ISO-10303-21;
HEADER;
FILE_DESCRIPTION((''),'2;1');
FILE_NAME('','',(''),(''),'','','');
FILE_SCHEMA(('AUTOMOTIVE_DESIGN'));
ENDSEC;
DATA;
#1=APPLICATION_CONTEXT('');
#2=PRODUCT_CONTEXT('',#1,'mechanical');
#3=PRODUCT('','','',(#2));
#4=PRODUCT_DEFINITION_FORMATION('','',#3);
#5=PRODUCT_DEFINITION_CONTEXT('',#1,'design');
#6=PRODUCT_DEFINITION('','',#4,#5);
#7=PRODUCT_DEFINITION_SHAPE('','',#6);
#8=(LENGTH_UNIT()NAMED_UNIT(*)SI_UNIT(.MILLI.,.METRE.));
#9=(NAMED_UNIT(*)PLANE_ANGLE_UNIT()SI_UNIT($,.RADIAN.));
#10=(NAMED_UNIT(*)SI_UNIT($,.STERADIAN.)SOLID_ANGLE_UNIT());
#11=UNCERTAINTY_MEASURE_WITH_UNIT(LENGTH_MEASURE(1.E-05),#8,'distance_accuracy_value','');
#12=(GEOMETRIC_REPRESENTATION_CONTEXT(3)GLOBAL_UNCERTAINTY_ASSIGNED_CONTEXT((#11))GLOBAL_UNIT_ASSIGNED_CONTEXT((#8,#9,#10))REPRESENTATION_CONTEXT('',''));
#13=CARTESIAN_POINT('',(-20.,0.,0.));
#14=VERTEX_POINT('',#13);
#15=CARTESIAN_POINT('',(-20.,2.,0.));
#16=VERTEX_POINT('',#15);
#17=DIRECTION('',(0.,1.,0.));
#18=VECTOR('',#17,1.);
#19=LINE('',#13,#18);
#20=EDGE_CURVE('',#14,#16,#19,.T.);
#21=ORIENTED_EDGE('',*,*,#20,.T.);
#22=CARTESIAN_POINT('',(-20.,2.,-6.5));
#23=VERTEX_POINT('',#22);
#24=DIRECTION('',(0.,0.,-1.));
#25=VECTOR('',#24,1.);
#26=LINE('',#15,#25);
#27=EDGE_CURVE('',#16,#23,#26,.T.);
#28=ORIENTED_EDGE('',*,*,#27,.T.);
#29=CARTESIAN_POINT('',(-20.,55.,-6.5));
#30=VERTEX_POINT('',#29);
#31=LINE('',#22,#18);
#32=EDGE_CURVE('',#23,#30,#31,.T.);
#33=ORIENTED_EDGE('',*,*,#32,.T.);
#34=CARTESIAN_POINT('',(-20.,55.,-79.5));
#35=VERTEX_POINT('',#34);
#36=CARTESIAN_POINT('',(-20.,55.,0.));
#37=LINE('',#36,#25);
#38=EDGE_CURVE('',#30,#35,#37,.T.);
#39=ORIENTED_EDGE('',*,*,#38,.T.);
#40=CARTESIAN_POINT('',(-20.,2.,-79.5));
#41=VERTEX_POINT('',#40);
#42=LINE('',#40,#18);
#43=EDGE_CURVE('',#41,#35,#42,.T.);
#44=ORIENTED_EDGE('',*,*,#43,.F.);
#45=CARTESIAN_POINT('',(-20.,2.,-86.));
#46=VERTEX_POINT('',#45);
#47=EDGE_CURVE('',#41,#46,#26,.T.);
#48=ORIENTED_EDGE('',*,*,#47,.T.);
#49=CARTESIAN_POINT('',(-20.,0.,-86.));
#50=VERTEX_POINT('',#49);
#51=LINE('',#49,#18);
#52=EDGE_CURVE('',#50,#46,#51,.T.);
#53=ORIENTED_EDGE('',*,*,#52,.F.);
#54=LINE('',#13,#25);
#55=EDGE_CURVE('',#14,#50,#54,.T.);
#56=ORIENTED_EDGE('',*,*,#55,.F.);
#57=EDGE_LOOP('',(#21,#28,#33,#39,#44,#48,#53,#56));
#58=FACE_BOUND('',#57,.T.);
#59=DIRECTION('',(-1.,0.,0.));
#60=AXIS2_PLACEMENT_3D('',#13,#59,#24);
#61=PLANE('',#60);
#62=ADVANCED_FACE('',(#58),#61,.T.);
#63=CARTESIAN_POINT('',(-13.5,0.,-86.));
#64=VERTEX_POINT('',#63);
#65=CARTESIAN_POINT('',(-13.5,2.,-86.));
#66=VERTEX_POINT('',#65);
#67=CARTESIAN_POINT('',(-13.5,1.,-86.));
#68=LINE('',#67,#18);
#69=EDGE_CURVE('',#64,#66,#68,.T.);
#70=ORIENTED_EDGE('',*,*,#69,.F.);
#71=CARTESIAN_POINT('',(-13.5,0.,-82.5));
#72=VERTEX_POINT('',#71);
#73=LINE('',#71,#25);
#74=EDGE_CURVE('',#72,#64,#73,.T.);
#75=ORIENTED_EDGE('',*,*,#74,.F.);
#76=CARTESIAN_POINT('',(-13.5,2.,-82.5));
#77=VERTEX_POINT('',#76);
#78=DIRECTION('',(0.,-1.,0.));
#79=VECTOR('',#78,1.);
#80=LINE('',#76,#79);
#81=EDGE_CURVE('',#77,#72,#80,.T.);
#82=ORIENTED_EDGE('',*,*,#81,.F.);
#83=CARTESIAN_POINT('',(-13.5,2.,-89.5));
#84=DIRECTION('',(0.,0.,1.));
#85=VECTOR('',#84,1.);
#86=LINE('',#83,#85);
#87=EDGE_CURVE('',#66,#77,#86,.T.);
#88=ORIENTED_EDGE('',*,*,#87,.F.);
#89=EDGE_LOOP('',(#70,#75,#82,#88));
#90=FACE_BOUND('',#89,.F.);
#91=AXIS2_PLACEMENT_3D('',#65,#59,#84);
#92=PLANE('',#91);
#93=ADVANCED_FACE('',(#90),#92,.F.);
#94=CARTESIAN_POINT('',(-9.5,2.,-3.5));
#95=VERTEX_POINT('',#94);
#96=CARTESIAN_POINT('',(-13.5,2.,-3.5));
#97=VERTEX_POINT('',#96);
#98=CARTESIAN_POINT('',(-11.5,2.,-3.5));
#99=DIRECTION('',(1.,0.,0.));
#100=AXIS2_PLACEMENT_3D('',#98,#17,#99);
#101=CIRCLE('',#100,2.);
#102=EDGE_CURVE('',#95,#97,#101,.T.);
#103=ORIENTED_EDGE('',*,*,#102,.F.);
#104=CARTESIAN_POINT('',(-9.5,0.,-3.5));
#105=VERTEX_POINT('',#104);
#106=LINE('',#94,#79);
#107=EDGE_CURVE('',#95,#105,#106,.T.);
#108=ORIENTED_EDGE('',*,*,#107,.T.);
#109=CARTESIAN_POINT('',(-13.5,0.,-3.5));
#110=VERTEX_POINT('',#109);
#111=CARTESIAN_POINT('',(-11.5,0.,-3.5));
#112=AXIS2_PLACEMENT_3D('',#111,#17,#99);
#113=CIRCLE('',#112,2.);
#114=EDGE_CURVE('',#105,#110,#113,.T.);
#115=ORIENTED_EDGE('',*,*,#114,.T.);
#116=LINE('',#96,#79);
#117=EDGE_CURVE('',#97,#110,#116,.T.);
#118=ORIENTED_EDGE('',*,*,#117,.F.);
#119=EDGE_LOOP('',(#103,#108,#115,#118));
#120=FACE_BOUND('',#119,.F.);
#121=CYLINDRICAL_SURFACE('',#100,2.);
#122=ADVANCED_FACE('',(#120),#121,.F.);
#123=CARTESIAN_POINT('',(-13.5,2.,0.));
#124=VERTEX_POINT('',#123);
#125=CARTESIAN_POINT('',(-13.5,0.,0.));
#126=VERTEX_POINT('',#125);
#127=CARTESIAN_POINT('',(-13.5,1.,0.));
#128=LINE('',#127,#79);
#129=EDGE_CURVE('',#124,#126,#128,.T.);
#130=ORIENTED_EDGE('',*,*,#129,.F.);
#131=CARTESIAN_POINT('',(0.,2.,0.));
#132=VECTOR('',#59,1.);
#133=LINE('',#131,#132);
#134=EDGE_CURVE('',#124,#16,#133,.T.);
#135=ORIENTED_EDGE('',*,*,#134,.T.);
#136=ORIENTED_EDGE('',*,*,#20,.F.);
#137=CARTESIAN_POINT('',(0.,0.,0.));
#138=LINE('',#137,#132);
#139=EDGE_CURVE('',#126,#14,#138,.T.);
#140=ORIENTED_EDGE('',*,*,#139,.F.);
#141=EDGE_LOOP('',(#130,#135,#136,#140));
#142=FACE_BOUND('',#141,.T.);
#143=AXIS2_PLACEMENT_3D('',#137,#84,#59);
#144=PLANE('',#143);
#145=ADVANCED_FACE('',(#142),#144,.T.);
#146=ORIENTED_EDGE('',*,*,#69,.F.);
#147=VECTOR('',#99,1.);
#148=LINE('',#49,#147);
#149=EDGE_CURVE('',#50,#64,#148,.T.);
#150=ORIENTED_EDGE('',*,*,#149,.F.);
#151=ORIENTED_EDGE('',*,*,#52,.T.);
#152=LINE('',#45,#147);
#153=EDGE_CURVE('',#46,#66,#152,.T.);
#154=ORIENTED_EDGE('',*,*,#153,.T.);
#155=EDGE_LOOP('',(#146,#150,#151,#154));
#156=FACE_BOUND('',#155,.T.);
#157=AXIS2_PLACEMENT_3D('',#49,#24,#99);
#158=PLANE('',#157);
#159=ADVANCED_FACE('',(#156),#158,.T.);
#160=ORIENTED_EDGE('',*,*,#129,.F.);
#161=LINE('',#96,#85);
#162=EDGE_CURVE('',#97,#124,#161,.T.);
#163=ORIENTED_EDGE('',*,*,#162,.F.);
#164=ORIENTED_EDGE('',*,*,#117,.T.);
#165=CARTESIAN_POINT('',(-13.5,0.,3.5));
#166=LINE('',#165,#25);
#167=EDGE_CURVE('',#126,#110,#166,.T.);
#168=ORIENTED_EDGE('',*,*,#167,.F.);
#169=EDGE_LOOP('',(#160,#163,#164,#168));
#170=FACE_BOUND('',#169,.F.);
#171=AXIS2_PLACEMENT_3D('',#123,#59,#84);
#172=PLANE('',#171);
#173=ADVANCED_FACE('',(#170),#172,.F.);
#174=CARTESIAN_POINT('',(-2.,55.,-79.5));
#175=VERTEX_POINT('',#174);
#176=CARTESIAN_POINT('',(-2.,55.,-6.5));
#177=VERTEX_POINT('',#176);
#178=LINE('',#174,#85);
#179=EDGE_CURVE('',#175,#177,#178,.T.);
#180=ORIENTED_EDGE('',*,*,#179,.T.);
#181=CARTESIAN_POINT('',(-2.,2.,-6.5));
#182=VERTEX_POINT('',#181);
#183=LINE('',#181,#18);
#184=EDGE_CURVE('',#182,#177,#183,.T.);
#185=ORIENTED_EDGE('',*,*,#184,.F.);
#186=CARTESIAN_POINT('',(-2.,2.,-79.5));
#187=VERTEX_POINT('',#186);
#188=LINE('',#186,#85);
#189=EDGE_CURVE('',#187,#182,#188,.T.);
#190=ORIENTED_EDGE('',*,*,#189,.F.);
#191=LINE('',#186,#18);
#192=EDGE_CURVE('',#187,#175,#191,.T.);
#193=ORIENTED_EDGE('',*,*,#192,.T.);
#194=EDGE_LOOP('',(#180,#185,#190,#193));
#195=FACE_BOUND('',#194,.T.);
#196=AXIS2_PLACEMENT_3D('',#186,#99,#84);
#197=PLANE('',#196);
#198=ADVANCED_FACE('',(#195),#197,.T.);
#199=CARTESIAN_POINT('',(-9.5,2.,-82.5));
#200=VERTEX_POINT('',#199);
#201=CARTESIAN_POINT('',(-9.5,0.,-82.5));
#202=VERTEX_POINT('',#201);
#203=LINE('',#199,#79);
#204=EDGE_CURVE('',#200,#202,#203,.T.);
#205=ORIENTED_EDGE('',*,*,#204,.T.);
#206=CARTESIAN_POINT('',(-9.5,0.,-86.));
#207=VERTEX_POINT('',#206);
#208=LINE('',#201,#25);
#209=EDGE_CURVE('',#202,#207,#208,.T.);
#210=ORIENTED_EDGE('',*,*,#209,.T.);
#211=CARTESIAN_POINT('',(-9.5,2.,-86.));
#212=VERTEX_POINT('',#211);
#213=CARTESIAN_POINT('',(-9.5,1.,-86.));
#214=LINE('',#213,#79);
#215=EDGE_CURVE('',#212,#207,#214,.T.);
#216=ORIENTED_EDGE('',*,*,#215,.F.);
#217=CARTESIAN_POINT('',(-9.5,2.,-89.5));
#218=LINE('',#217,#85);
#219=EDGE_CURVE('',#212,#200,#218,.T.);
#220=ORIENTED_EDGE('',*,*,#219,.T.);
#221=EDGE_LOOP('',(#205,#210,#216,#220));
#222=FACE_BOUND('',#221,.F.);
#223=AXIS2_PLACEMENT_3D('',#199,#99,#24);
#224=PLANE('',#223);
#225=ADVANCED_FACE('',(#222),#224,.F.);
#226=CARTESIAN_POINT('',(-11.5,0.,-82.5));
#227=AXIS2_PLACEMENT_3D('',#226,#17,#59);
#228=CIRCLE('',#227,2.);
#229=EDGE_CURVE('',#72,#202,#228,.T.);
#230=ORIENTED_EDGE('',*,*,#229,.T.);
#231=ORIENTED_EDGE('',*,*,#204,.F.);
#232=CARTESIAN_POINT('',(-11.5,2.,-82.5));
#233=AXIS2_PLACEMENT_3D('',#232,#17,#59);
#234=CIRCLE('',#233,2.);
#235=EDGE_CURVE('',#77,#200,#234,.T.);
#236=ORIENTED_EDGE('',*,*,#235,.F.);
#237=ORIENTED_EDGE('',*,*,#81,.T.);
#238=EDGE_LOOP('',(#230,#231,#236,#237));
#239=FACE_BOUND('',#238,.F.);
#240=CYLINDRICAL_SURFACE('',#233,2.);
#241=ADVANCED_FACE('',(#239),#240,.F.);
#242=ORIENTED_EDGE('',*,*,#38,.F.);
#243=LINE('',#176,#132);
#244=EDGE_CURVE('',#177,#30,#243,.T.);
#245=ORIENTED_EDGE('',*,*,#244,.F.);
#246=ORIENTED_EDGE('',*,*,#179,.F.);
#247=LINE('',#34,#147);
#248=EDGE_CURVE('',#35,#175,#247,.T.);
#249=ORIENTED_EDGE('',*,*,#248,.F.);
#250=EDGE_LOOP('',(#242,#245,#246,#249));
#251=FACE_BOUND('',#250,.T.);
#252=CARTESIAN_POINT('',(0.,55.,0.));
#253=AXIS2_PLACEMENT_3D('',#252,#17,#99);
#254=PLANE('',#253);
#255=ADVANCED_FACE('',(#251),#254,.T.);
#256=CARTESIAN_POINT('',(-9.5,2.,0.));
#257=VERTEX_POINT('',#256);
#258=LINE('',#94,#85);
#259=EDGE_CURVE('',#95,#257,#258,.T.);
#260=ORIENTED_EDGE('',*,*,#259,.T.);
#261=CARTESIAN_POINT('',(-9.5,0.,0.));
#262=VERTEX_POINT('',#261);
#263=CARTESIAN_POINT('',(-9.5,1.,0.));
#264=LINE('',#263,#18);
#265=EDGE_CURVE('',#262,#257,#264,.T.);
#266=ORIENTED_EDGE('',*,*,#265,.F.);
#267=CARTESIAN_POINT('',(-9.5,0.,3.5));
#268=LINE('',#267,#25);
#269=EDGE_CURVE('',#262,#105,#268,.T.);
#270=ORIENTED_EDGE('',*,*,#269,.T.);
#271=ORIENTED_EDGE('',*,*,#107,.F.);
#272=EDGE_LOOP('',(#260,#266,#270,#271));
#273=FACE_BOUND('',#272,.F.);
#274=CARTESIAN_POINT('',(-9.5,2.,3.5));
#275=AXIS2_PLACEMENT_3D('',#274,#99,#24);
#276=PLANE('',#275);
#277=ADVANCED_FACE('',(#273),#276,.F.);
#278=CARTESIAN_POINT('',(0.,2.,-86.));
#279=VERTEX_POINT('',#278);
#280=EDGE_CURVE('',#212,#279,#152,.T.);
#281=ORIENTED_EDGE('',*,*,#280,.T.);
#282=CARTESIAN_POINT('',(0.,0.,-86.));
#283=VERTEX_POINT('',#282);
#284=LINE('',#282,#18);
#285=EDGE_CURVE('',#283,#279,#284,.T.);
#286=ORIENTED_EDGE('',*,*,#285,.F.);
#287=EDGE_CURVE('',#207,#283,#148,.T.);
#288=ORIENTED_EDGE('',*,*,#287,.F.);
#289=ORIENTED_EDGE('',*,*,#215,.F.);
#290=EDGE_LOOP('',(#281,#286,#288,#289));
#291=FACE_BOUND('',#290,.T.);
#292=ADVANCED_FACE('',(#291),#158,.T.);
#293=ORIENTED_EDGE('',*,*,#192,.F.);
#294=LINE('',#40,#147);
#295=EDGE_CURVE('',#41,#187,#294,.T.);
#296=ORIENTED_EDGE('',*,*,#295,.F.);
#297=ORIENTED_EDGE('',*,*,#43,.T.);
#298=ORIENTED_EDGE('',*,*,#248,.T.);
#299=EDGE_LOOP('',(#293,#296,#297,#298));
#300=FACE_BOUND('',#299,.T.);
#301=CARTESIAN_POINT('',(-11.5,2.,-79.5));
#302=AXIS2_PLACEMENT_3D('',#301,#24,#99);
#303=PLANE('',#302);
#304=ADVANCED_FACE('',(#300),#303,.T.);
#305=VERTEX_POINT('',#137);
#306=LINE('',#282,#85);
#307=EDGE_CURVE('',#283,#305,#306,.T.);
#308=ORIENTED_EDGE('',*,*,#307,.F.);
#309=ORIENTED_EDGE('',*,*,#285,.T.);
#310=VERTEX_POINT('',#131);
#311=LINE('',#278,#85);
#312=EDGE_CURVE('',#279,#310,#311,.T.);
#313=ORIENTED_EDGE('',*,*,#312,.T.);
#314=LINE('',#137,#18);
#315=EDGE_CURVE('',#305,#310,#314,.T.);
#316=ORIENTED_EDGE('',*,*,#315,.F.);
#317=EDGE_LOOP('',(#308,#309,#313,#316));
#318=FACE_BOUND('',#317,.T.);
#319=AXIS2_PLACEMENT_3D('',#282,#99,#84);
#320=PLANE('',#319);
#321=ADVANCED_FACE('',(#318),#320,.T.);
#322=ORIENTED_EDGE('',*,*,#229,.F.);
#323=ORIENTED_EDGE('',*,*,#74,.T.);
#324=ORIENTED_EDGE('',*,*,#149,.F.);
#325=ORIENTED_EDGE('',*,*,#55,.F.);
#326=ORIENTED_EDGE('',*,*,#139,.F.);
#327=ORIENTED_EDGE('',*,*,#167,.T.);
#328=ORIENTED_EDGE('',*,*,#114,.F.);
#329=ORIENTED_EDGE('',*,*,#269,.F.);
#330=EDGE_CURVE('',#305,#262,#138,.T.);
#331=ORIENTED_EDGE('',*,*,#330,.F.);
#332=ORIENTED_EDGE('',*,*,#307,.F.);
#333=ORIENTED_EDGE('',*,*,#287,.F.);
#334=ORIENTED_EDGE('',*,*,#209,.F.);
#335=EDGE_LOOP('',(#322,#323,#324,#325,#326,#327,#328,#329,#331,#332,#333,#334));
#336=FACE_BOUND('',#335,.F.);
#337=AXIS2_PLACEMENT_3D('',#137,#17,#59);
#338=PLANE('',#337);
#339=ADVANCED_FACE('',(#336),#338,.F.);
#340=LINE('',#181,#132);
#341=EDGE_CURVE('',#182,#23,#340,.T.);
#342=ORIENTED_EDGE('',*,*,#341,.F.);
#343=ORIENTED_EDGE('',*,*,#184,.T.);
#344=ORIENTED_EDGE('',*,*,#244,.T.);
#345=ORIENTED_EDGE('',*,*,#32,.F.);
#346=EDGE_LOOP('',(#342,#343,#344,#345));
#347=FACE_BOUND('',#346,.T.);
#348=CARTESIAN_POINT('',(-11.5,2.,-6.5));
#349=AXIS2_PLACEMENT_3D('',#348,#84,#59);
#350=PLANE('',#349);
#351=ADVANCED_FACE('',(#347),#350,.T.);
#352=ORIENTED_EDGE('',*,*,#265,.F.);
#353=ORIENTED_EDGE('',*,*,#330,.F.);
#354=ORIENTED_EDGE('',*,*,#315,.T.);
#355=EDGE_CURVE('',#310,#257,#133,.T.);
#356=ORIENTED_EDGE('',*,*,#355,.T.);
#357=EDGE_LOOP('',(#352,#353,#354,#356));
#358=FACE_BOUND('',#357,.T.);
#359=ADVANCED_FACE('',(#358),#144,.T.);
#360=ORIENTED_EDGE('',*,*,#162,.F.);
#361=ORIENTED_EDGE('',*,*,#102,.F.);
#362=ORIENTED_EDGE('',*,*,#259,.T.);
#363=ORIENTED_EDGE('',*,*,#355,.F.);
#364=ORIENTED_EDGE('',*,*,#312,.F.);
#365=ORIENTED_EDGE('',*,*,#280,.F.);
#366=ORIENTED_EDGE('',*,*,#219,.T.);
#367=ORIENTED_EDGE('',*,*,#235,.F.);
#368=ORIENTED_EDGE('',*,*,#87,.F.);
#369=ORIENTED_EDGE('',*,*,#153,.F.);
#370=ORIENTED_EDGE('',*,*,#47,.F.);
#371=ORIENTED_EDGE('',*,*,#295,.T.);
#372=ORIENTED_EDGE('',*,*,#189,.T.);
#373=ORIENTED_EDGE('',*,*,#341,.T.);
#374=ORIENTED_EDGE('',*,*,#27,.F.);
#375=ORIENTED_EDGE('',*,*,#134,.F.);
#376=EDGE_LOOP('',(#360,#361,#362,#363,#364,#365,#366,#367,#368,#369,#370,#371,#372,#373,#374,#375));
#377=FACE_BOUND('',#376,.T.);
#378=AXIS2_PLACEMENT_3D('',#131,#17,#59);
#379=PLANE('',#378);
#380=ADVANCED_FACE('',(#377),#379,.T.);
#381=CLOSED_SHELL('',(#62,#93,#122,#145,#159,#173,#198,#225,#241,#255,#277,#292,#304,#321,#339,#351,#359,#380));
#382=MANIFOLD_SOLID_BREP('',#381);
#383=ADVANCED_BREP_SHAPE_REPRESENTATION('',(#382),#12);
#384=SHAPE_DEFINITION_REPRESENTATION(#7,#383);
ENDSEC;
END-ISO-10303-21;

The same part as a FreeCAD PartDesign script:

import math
import FreeCAD as App
import Part
import Sketcher

V = App.Vector
Q = App.Units.Quantity


def add_polygon(sketch, points):
    """Adds a closed chain of lines whose ends are joined by coincident constraints."""
    first, n = sketch.GeometryCount, len(points)
    for a, b in zip(points, points[1:] + points[:1]):
        sketch.addGeometry(Part.LineSegment(App.Vector(*a, 0), App.Vector(*b, 0)), False)
    for i in range(n):
        sketch.addConstraint(Sketcher.Constraint("Coincident", first + i, 2, first + (i + 1) % n, 1))

doc = App.newDocument("Part")
body = doc.addObject("PartDesign::Body", "Body")

# Sketch on XZ plane
sketch1 = body.newObject("Sketcher::SketchObject", "Sketch")
sketch1.AttachmentSupport = (doc.getObject("XZ_Plane"), [""])
sketch1.MapMode = "FlatFace"
add_polygon(sketch1, [(-20, 0), (0, 0), (0, -86), (-20, -86)])  # lines 0-3
sketch1.addConstraint(Sketcher.Constraint("Horizontal", 0))
sketch1.addConstraint(Sketcher.Constraint("Vertical", 1))
sketch1.addConstraint(Sketcher.Constraint("Horizontal", 2))
sketch1.addConstraint(Sketcher.Constraint("Vertical", 3))
sketch1.addConstraint(Sketcher.Constraint("Coincident", 0, 2, -1, 1))
sketch1.addConstraint(Sketcher.Constraint("DistanceX", 0, 1, 0, 2, Q("20 mm")))
sketch1.addConstraint(Sketcher.Constraint("DistanceY", 1, 2, 1, 1, Q("86 mm")))
pad1 = body.newObject("PartDesign::Pad", "Pad")
pad1.Profile = sketch1
pad1.Length = 2
pad1.Reversed = True

# Sketch on XZ plane
sketch2 = body.newObject("Sketcher::SketchObject", "Sketch001")
sketch2.AttachmentSupport = (doc.getObject("XZ_Plane"), [""])
sketch2.MapMode = "FlatFace"
sketch2.AttachmentOffset = App.Placement(V(0, 0, -2), App.Rotation())
sketch2.addGeometry(Part.LineSegment(V(-9.5, -82.5, 0), V(-9.5, -89.5, 0)), False)
sketch2.addGeometry(Part.ArcOfCircle(Part.Circle(V(-11.5, -89.5, 0), V(0, 0, 1), 2), math.radians(180), math.radians(360)), False)
sketch2.addGeometry(Part.LineSegment(V(-13.5, -89.5, 0), V(-13.5, -82.5, 0)), False)
sketch2.addGeometry(Part.ArcOfCircle(Part.Circle(V(-11.5, -82.5, 0), V(0, 0, 1), 2), math.radians(0), math.radians(180)), False)
sketch2.addGeometry(Part.LineSegment(V(-9.5, 3.5, 0), V(-9.5, -3.5, 0)), False)
sketch2.addGeometry(Part.ArcOfCircle(Part.Circle(V(-11.5, -3.5, 0), V(0, 0, 1), 2), math.radians(180), math.radians(360)), False)
sketch2.addGeometry(Part.LineSegment(V(-13.5, -3.5, 0), V(-13.5, 3.5, 0)), False)
sketch2.addGeometry(Part.ArcOfCircle(Part.Circle(V(-11.5, 3.5, 0), V(0, 0, 1), 2), math.radians(0), math.radians(180)), False)
sketch2.addConstraint(Sketcher.Constraint("Tangent", 0, 2, 1, 2))
sketch2.addConstraint(Sketcher.Constraint("Tangent", 1, 1, 2, 1))
sketch2.addConstraint(Sketcher.Constraint("Tangent", 2, 2, 3, 2))
sketch2.addConstraint(Sketcher.Constraint("Tangent", 3, 1, 0, 1))
sketch2.addConstraint(Sketcher.Constraint("Tangent", 4, 2, 5, 2))
sketch2.addConstraint(Sketcher.Constraint("Tangent", 5, 1, 6, 1))
sketch2.addConstraint(Sketcher.Constraint("Tangent", 6, 2, 7, 2))
sketch2.addConstraint(Sketcher.Constraint("Tangent", 7, 1, 4, 1))
sketch2.addConstraint(Sketcher.Constraint("Vertical", 0))
sketch2.addConstraint(Sketcher.Constraint("Vertical", 2))
sketch2.addConstraint(Sketcher.Constraint("Vertical", 4))
sketch2.addConstraint(Sketcher.Constraint("Vertical", 6))
sketch2.addConstraint(Sketcher.Constraint("Equal", 3, 5))
sketch2.addConstraint(Sketcher.Constraint("Vertical", 3, 3, 5, 3))
sketch2.addConstraint(Sketcher.Constraint("Equal", 2, 4))
sketch2.addConstraint(Sketcher.Constraint("Radius", 1, Q("2 mm")))
sketch2.addConstraint(Sketcher.Constraint("DistanceX", 1, 3, -1, 1, Q("11.5 mm")))
sketch2.addConstraint(Sketcher.Constraint("DistanceY", 5, 3, -1, 1, Q("3.5 mm")))
sketch2.addConstraint(Sketcher.Constraint("DistanceY", -1, 1, 7, 3, Q("3.5 mm")))
sketch2.addConstraint(Sketcher.Constraint("DistanceY", 3, 3, 5, 3, Q("79 mm")))
pocket1 = body.newObject("PartDesign::Pocket", "Pocket")
pocket1.Profile = sketch2
pocket1.Length = 2
pocket1.Reversed = True

# Sketch on XZ plane
sketch3 = body.newObject("Sketcher::SketchObject", "Sketch002")
sketch3.AttachmentSupport = (doc.getObject("XZ_Plane"), [""])
sketch3.MapMode = "FlatFace"
sketch3.AttachmentOffset = App.Placement(V(0, 0, -2), App.Rotation())
add_polygon(sketch3, [(-2, -80), (-20, -80), (-20, -6), (-2, -6)])  # lines 0-3
sketch3.addConstraint(Sketcher.Constraint("Horizontal", 0))
sketch3.addConstraint(Sketcher.Constraint("Vertical", 1))
sketch3.addConstraint(Sketcher.Constraint("Horizontal", 2))
sketch3.addConstraint(Sketcher.Constraint("Vertical", 3))
sketch3.addConstraint(Sketcher.Constraint("DistanceX", 0, 2, 0, 1, Q("18 mm")))
sketch3.addConstraint(Sketcher.Constraint("DistanceY", 1, 1, 1, 2, Q("73 mm")))
sketch3.addConstraint(Sketcher.Constraint("DistanceX", 0, 2, -1, 1, Q("20 mm")))
sketch3.addConstraint(Sketcher.Constraint("DistanceY", 0, 2, -1, 1, Q("79.5 mm")))
pad2 = body.newObject("PartDesign::Pad", "Pad001")
pad2.Profile = sketch3
pad2.Length = 53
pad2.Reversed = True

doc.recompute()
